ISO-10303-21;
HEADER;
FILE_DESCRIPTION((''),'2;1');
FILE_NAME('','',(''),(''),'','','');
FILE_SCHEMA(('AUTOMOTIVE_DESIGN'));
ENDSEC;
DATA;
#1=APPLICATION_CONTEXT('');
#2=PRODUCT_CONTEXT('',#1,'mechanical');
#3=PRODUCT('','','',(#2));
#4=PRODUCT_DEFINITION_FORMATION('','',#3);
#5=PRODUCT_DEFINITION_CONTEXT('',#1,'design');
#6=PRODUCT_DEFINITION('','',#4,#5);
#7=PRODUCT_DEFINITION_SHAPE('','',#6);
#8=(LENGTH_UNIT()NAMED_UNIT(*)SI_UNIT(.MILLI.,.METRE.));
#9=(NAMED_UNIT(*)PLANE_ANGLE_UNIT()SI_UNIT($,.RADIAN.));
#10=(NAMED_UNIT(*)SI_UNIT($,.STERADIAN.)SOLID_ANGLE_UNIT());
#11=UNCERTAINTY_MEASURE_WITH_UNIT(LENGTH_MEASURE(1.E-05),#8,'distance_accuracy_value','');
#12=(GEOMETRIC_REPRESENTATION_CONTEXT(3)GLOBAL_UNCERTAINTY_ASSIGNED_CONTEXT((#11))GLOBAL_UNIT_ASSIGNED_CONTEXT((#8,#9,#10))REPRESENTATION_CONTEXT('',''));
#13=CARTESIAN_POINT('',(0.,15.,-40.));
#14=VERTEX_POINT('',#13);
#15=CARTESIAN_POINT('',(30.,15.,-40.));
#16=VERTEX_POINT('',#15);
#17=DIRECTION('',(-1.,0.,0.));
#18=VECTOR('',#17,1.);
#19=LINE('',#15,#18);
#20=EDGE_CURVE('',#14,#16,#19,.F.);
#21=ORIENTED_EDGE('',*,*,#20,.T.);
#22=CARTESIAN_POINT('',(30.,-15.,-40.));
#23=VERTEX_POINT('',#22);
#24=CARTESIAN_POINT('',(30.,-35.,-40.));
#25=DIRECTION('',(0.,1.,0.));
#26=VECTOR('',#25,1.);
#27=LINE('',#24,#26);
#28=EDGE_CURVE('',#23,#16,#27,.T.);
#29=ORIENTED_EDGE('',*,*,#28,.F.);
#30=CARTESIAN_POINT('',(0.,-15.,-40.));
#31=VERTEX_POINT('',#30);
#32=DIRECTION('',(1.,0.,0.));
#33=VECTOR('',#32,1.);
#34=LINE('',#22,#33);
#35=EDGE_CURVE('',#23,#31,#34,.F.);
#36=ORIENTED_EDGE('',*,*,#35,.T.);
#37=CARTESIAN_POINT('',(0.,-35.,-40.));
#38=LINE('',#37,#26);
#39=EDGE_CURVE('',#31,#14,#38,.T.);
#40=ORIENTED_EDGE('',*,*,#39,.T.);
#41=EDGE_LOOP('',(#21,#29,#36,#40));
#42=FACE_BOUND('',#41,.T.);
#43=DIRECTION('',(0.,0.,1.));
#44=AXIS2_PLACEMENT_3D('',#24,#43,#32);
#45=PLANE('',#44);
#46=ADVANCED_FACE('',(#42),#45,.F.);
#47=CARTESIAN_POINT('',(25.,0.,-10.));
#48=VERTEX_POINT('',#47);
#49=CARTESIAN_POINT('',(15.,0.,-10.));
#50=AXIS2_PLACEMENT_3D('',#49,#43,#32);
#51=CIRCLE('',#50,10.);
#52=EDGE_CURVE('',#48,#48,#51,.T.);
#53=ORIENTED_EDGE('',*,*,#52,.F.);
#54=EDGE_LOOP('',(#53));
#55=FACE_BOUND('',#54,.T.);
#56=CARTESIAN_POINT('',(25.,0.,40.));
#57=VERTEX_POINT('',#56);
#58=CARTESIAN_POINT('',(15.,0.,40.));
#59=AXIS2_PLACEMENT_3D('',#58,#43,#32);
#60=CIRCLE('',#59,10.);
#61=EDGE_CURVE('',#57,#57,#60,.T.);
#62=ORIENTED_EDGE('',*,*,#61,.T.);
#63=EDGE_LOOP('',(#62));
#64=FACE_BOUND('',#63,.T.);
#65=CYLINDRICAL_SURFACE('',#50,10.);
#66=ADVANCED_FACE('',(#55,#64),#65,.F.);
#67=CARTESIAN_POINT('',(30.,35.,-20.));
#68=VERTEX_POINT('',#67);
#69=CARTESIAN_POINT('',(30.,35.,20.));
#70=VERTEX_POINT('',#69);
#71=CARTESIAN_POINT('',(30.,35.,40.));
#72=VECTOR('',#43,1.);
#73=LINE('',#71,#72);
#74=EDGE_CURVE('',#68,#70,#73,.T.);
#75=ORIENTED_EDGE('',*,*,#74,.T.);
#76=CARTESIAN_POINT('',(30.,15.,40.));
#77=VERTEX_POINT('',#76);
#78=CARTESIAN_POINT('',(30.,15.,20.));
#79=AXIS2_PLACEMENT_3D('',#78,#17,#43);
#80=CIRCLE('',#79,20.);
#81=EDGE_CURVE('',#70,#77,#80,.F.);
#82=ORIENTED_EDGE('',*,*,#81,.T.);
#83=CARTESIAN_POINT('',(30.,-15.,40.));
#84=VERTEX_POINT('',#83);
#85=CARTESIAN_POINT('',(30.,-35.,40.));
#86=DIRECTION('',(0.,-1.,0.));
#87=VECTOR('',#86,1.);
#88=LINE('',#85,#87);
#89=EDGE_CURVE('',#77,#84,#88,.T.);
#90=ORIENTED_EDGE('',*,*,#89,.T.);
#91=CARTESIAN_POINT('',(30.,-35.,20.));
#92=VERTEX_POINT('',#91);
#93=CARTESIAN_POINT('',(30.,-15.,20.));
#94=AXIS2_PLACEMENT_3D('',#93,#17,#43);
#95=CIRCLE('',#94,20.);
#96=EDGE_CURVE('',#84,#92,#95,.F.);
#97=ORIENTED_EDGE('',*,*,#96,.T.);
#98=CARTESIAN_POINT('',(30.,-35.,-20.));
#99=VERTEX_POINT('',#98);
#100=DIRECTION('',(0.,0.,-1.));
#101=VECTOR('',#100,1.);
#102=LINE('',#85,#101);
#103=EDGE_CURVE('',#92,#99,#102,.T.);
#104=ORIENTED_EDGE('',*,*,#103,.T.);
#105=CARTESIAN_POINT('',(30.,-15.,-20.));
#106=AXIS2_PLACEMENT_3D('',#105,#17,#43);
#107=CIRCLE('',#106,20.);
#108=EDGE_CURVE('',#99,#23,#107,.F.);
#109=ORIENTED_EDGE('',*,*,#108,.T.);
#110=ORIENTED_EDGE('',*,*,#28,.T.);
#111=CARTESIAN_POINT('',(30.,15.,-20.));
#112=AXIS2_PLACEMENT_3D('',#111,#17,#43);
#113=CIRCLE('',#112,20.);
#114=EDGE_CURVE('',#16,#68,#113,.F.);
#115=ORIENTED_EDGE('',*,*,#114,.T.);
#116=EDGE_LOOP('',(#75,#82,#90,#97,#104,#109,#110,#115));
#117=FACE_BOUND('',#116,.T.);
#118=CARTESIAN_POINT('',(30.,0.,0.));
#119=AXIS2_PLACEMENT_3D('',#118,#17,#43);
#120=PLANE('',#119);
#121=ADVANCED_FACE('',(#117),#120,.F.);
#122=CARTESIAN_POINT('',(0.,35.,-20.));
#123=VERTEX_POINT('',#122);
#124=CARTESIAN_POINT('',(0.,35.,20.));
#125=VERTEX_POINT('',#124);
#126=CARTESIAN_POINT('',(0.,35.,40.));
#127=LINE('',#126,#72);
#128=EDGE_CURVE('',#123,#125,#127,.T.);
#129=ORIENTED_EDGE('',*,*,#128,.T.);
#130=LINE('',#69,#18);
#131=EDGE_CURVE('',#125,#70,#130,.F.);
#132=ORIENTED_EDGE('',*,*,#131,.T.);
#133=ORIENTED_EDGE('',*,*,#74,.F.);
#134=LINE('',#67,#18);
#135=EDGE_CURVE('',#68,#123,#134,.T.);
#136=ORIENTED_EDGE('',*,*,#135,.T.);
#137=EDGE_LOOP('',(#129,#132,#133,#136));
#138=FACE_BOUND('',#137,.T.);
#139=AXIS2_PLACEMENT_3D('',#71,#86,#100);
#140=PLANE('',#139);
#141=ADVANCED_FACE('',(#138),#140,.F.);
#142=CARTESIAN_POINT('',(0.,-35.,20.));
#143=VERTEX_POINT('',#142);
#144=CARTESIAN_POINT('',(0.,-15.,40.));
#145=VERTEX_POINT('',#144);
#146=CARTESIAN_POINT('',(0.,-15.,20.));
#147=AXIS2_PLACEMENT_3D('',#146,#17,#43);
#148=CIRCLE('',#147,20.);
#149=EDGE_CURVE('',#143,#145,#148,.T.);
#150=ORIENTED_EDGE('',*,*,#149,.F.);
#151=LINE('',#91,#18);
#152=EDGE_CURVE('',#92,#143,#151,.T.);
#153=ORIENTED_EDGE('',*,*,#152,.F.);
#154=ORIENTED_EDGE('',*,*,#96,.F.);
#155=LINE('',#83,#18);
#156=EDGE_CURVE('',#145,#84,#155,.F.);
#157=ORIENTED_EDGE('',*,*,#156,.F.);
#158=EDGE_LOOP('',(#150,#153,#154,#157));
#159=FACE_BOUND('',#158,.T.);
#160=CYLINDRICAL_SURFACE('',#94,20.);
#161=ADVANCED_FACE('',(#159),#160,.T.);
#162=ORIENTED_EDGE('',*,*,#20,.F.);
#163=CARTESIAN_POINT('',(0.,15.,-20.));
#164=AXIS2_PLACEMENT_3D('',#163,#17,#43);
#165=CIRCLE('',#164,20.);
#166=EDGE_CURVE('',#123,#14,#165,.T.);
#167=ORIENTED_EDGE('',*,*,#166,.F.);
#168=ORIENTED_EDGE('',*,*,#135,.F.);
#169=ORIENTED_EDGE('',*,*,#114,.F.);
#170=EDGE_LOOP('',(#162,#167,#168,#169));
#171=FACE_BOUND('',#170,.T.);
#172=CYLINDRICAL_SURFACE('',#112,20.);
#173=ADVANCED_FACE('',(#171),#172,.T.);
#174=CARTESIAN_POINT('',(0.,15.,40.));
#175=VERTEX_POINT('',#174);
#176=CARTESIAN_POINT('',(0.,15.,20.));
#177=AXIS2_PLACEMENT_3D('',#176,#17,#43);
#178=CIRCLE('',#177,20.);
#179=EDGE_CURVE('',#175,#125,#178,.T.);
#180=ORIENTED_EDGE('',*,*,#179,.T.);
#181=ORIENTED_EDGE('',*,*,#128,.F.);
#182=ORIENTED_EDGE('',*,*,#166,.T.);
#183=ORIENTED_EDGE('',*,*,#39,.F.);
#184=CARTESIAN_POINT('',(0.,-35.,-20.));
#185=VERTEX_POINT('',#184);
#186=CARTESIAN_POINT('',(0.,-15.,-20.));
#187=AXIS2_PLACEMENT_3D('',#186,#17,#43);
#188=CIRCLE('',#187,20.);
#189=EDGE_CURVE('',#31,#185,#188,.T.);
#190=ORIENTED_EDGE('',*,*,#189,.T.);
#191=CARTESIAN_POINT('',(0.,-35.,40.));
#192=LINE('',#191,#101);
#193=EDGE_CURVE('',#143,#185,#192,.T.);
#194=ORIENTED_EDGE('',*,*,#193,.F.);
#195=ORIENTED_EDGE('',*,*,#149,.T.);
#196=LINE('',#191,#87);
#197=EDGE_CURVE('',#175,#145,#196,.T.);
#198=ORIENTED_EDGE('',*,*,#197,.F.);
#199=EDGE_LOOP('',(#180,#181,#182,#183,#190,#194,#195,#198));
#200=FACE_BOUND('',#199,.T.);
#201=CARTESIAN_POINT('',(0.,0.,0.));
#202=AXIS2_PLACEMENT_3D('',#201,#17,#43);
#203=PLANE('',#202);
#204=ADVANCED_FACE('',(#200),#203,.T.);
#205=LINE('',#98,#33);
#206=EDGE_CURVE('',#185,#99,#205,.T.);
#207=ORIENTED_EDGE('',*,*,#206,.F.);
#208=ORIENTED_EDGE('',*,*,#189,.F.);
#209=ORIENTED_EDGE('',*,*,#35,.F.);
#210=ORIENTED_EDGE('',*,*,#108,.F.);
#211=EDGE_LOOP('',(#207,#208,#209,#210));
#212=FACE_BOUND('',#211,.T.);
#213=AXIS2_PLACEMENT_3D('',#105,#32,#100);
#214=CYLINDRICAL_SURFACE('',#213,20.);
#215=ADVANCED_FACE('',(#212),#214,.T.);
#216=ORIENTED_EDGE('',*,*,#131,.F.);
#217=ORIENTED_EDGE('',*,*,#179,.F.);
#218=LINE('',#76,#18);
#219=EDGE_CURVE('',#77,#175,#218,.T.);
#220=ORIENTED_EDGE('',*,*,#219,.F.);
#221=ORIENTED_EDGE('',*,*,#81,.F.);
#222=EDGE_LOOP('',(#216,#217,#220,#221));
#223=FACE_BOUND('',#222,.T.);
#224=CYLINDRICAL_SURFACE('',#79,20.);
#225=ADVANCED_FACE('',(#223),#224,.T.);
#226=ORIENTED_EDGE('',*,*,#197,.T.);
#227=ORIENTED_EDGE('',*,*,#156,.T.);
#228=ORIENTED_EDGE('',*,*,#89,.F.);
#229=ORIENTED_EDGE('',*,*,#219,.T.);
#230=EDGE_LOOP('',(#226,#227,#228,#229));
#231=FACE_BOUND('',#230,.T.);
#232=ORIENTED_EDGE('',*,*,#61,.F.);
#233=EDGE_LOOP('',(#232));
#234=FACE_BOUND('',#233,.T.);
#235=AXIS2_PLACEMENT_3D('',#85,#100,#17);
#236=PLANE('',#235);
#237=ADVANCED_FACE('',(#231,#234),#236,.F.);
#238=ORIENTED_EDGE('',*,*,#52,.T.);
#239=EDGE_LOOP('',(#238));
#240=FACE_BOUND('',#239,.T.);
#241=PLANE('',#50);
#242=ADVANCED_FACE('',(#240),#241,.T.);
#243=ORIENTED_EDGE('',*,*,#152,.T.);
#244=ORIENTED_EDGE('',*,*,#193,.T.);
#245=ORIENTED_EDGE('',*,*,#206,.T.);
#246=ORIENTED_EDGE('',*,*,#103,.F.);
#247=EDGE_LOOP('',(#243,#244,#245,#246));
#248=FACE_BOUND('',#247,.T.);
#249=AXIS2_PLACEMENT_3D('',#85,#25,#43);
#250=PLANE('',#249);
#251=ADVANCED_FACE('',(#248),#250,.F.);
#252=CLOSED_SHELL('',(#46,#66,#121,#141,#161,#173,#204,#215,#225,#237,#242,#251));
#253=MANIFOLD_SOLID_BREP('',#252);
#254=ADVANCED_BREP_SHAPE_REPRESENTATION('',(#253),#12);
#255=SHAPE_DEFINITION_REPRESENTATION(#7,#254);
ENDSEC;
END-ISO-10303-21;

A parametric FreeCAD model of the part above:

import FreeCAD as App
import Part
import Sketcher
from FreeCAD import Vector


def edges_at(feature, points):
    """Names of the edges that pass closest to the given points."""
    edges = feature.Shape.Edges
    near = lambda p: min(range(len(edges)), key=lambda i: edges[i].distToShape(Part.Vertex(*p))[0])
    return sorted({f"Edge{near(p) + 1}" for p in points})

doc = App.newDocument("Part")
body = doc.addObject("PartDesign::Body", "Body")

sketch1 = body.newObject("Sketcher::SketchObject", "Sketch")
sketch1.AttachmentSupport = (doc.getObject("YZ_Plane"), [""])
sketch1.MapMode = "FlatFace"
sketch1.addGeometry([
    Part.LineSegment(Vector(35, 40, 0), Vector(-35, 40, 0)),
    Part.LineSegment(Vector(-35, 40, 0), Vector(-35, -40, 0)),
    Part.LineSegment(Vector(-35, -40, 0), Vector(35, -40, 0)),
    Part.LineSegment(Vector(35, -40, 0), Vector(35, 40, 0)),
], False)
sketch1.addConstraint([
    Sketcher.Constraint("Coincident", 0, 2, 1, 1),
    Sketcher.Constraint("Coincident", 1, 2, 2, 1),
    Sketcher.Constraint("Coincident", 2, 2, 3, 1),
    Sketcher.Constraint("Coincident", 3, 2, 0, 1),
    Sketcher.Constraint("Horizontal", 0),
    Sketcher.Constraint("Vertical", 1),
    Sketcher.Constraint("Horizontal", 2),
    Sketcher.Constraint("Vertical", 3),
    Sketcher.Constraint("Symmetric", 0, 2, 2, 2, -1, 1),
    Sketcher.Constraint("DistanceX", 0, 2, 0, 1, 70.0),
    Sketcher.Constraint("DistanceY", 1, 2, 1, 1, 80.0),
])
pad1 = body.newObject("PartDesign::Pad", "Pad")
pad1.Profile = sketch1
pad1.Length = 30

sketch2 = body.newObject("Sketcher::SketchObject", "Sketch001")
sketch2.AttachmentSupport = (doc.getObject("XY_Plane"), [""])
sketch2.MapMode = "FlatFace"
sketch2.AttachmentOffset = App.Placement(Vector(0, 0, 40), App.Rotation())
sketch2.addGeometry(Part.Circle(Vector(15, 0, 0), Vector(0, 0, 1), 10), False)
sketch2.addConstraint([
    Sketcher.Constraint("PointOnObject", 0, 3, -1),
    Sketcher.Constraint("Diameter", 0, 20.0),
    Sketcher.Constraint("DistanceX", -1, 1, 0, 3, 15.0),
])
pocket1 = body.newObject("PartDesign::Pocket", "Pocket")
pocket1.Profile = sketch2
pocket1.Length = 50
doc.recompute()

fillet = body.newObject("PartDesign::Fillet", "Fillet")
fillet.Base = (pocket1, edges_at(pocket1, [(15, 35, -40)]))
fillet.Radius = 20
doc.recompute()

fillet2 = body.newObject("PartDesign::Fillet", "Fillet001")
fillet2.Base = (fillet, edges_at(fillet, [(15, -35, -40)]))
fillet2.Radius = 20
doc.recompute()

fillet3 = body.newObject("PartDesign::Fillet", "Fillet002")
fillet3.Base = (fillet2, edges_at(fillet2, [(15, -35, 40)]))
fillet3.Radius = 20
doc.recompute()

fillet4 = body.newObject("PartDesign::Fillet", "Fillet003")
fillet4.Base = (fillet3, edges_at(fillet3, [(15, 35, 40)]))
fillet4.Radius = 20

doc.recompute()
